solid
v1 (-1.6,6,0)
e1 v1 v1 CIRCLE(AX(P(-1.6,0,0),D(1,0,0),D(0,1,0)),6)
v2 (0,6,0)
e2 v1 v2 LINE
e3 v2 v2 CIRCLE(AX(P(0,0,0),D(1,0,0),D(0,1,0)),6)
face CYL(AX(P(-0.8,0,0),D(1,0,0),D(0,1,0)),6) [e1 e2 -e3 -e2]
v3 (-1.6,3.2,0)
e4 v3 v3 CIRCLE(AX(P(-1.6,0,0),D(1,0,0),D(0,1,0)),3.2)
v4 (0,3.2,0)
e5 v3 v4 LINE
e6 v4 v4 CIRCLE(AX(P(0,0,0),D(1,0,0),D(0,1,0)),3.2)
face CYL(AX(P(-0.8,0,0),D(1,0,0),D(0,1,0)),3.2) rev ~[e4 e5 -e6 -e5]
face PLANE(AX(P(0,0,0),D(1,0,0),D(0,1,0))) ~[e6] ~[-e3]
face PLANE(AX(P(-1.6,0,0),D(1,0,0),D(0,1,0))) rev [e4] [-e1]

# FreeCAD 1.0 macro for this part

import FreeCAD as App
import Part
import Sketcher

V = App.Vector
Q = App.Units.Quantity

doc = App.newDocument("Part")
body = doc.addObject("PartDesign::Body", "Body")

# Sketch on XY plane
sketch1 = body.newObject("Sketcher::SketchObject", "Sketch")
sketch1.AttachmentSupport = (doc.getObject("XY_Plane"), [""])
sketch1.MapMode = "FlatFace"
sketch1.addGeometry([
    Part.LineSegment(V(-1.6, 6, 0), V(-1.6, 3.2, 0)),
    Part.LineSegment(V(-1.6, 3.2, 0), V(0, 3.2, 0)),
    Part.LineSegment(V(0, 3.2, 0), V(0, 6, 0)),
    Part.LineSegment(V(0, 6, 0), V(-1.6, 6, 0)),
], False)
sketch1.addConstraint([
    Sketcher.Constraint("Coincident", 0, 2, 1, 1),
    Sketcher.Constraint("Coincident", 1, 2, 2, 1),
    Sketcher.Constraint("Coincident", 2, 2, 3, 1),
    Sketcher.Constraint("Coincident", 3, 2, 0, 1),
    Sketcher.Constraint("Vertical", 0),
    Sketcher.Constraint("Horizontal", 1),
    Sketcher.Constraint("Vertical", 2),
    Sketcher.Constraint("Horizontal", 3),
    Sketcher.Constraint("PointOnObject", 1, 2, -2),
    Sketcher.Constraint("DistanceX", 1, 1, 1, 2, Q("1.6 mm")),
    Sketcher.Constraint("DistanceY", 0, 2, 0, 1, Q("2.8 mm")),
    Sketcher.Constraint("DistanceY", -1, 1, 2, 2, Q("6 mm")),
])
revolution = body.newObject("PartDesign::Revolution", "Revolution")
revolution.Profile = sketch1
revolution.ReferenceAxis = (sketch1, ["H_Axis"])
revolution.Angle = 360

doc.recompute()
